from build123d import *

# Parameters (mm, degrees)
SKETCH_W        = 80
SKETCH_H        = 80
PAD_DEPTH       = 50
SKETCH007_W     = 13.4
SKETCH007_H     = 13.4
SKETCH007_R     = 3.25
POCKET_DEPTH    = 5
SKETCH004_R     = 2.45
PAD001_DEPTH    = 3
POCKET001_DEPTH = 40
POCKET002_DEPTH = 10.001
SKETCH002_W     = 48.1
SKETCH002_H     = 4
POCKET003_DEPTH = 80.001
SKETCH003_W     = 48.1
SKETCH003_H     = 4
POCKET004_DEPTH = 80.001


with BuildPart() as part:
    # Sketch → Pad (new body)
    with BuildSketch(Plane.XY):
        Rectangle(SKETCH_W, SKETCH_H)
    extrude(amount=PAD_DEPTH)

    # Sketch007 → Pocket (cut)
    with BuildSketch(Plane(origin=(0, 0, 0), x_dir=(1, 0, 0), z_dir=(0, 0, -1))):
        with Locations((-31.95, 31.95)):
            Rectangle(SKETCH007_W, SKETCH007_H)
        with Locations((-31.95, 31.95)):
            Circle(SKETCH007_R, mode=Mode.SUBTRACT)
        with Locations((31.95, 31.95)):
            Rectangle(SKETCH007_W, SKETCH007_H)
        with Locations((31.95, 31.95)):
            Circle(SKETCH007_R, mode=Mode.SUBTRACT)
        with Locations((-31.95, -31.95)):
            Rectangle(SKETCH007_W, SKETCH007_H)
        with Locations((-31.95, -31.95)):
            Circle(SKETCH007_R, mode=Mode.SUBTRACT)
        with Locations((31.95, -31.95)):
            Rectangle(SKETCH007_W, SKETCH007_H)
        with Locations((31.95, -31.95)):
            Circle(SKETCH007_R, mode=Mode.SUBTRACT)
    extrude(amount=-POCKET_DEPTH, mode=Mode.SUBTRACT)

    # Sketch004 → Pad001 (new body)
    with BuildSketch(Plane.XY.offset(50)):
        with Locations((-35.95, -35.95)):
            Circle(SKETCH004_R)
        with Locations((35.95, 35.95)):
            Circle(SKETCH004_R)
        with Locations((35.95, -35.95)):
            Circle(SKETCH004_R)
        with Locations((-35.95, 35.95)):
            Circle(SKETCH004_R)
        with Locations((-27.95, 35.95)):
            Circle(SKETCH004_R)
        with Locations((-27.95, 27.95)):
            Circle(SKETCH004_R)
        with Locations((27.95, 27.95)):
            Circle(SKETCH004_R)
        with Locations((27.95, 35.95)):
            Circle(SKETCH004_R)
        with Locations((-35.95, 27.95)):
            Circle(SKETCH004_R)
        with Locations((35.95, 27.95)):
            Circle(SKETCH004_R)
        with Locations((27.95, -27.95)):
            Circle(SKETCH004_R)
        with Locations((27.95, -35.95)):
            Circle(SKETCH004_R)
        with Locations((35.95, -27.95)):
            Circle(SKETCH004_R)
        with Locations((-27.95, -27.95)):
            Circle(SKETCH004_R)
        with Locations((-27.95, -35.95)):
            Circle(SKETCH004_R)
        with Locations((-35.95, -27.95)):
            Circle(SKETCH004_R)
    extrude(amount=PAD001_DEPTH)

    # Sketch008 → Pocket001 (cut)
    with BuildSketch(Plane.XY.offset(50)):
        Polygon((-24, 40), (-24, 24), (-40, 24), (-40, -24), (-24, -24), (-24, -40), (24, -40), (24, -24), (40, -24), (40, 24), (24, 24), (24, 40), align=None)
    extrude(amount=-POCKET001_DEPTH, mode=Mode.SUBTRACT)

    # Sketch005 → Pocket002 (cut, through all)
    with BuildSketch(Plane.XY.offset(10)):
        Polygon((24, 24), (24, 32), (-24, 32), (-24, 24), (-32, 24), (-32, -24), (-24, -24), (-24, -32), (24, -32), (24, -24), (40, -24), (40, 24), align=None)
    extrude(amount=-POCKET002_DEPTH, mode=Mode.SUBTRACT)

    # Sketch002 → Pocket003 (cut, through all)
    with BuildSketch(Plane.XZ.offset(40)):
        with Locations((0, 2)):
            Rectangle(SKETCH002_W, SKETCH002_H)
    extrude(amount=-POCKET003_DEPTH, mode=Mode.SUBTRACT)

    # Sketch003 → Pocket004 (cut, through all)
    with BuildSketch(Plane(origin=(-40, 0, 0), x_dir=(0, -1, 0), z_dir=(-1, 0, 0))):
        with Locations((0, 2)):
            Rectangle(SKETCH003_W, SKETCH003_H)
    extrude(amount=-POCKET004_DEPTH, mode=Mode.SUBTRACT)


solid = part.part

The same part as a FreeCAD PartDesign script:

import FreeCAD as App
import Part
import Sketcher
from FreeCAD import Vector


def add_polygon(sketch, points):
    """Adds a closed chain of lines whose ends are joined by coincident constraints."""
    first, n = sketch.GeometryCount, len(points)
    for a, b in zip(points, points[1:] + points[:1]):
        sketch.addGeometry(Part.LineSegment(App.Vector(*a, 0), App.Vector(*b, 0)), False)
    for i in range(n):
        sketch.addConstraint(Sketcher.Constraint("Coincident", first + i, 2, first + (i + 1) % n, 1))

doc = App.newDocument("Part")
body = doc.addObject("PartDesign::Body", "Body")

sketch1 = body.newObject("Sketcher::SketchObject", "Sketch")
sketch1.AttachmentSupport = (doc.getObject("XY_Plane"), [""])
sketch1.MapMode = "FlatFace"
add_polygon(sketch1, [(-40, 40), (-40, -40), (40, -40), (40, 40)])
sketch1.addConstraint([
    Sketcher.Constraint("Vertical", 0),
    Sketcher.Constraint("Horizontal", 1),
    Sketcher.Constraint("Vertical", 2),
    Sketcher.Constraint("Horizontal", 3),
    Sketcher.Constraint("Symmetric", 0, 2, 2, 2, -1, 1),
    Sketcher.Constraint("Equal", 3, 0),
    Sketcher.Constraint("DistanceX", 1, 1, 1, 2, 80.0),
])
pad1 = body.newObject("PartDesign::Pad", "Pad")
pad1.Profile = sketch1
pad1.Length = 50

sketch2 = body.newObject("Sketcher::SketchObject", "Sketch001")
sketch2.AttachmentSupport = (doc.getObject("XY_Plane"), [""])
sketch2.MapMode = "FlatFace"
add_polygon(sketch2, [(-38.6, -38.6), (-38.6, -25.2), (-25.2, -25.2), (-25.2, -38.6)])
sketch2.addGeometry(Part.Circle(Vector(-31.9, -31.9, 0), Vector(0, 0, 1), 3.2), False)
add_polygon(sketch2, [(25.2, -38.6), (25.2, -25.2), (38.6, -25.2), (38.6, -38.6)])
sketch2.addGeometry(Part.Circle(Vector(31.9, -31.9, 0), Vector(0, 0, 1), 3.2), False)
add_polygon(sketch2, [(-38.6, 25.2), (-38.6, 38.6), (-25.2, 38.6), (-25.2, 25.2)])
sketch2.addGeometry(Part.Circle(Vector(-31.9, 31.9, 0), Vector(0, 0, 1), 3.2), False)
add_polygon(sketch2, [(25.2, 25.2), (25.2, 38.6), (38.6, 38.6), (38.6, 25.2)])
sketch2.addGeometry(Part.Circle(Vector(31.9, 31.9, 0), Vector(0, 0, 1), 3.2), False)
sketch2.addConstraint([
    Sketcher.Constraint("Vertical", 0),
    Sketcher.Constraint("Horizontal", 1),
    Sketcher.Constraint("Vertical", 2),
    Sketcher.Constraint("Horizontal", 3),
    Sketcher.Constraint("Vertical", 5),
    Sketcher.Constraint("Horizontal", 6),
    Sketcher.Constraint("Vertical", 7),
    Sketcher.Constraint("Horizontal", 8),
    Sketcher.Constraint("Vertical", 10),
    Sketcher.Constraint("Horizontal", 11),
    Sketcher.Constraint("Vertical", 12),
    Sketcher.Constraint("Horizontal", 13),
    Sketcher.Constraint("Vertical", 15),
    Sketcher.Constraint("Horizontal", 16),
    Sketcher.Constraint("Vertical", 17),
    Sketcher.Constraint("Horizontal", 18),
    Sketcher.Constraint("Equal", 4, 9),
    Sketcher.Constraint("Equal", 9, 14),
    Sketcher.Constraint("Equal", 14, 19),
    Sketcher.Constraint("Symmetric", 9, 3, 14, 3, -1, 1),
    Sketcher.Constraint("Symmetric", 4, 3, 19, 3, -1, 1),
    Sketcher.Constraint("Symmetric", 7, 2, 10, 2, -1, 1),
    Sketcher.Constraint("Symmetric", 5, 2, 12, 2, -1, 1),
    Sketcher.Constraint("Symmetric", 2, 2, 15, 2, -1, 1),
    Sketcher.Constraint("Symmetric", 0, 2, 17, 2, -1, 1),
    Sketcher.Constraint("Symmetric", 4, 3, 9, 3, -2),
    Sketcher.Constraint("Symmetric", 1, 2, 5, 2, -2),
    Sketcher.Constraint("Symmetric", 3, 2, 7, 2, -2),
    Sketcher.Constraint("Equal", 18, 0),
    Sketcher.Constraint("Diameter", 4, 6.5),
    Sketcher.Constraint("DistanceX", 1, 1, 1, 2, 13.4),
    Sketcher.Constraint("DistanceX", 4, 3, 9, 3, 63.9),
    Sketcher.Constraint("DistanceY", 4, 3, 14, 3, 63.9),
    Sketcher.Constraint("DistanceX", 0, 2, 4, 3, 6.7),
    Sketcher.Constraint("DistanceY", 4, 3, 0, 2, 6.7),
])
pocket1 = body.newObject("PartDesign::Pocket", "Pocket")
pocket1.Profile = sketch2
pocket1.Length = 5
pocket1.Reversed = True

sketch3 = body.newObject("Sketcher::SketchObject", "Sketch002")
sketch3.AttachmentSupport = (doc.getObject("XY_Plane"), [""])
sketch3.MapMode = "FlatFace"
sketch3.AttachmentOffset = App.Placement(Vector(0, 0, 50), App.Rotation())
sketch3.addGeometry([
    Part.Circle(Vector(-36, -36, 0), Vector(0, 0, 1), 2.5),
    Part.Circle(Vector(36, 36, 0), Vector(0, 0, 1), 2.5),
    Part.Circle(Vector(36, -36, 0), Vector(0, 0, 1), 2.5),
    Part.Circle(Vector(-36, 36, 0), Vector(0, 0, 1), 2.5),
    Part.Circle(Vector(-27.9, 36, 0), Vector(0, 0, 1), 2.5),
    Part.Circle(Vector(-27.9, 27.9, 0), Vector(0, 0, 1), 2.5),
    Part.Circle(Vector(27.9, 27.9, 0), Vector(0, 0, 1), 2.5),
    Part.Circle(Vector(27.9, 36, 0), Vector(0, 0, 1), 2.5),
    Part.Circle(Vector(-36, 27.9, 0), Vector(0, 0, 1), 2.5),
    Part.Circle(Vector(36, 27.9, 0), Vector(0, 0, 1), 2.5),
    Part.Circle(Vector(27.9, -27.9, 0), Vector(0, 0, 1), 2.5),
    Part.Circle(Vector(27.9, -36, 0), Vector(0, 0, 1), 2.5),
    Part.Circle(Vector(36, -27.9, 0), Vector(0, 0, 1), 2.5),
    Part.Circle(Vector(-27.9, -27.9, 0), Vector(0, 0, 1), 2.5),
    Part.Circle(Vector(-27.9, -36, 0), Vector(0, 0, 1), 2.5),
    Part.Circle(Vector(-36, -27.9, 0), Vector(0, 0, 1), 2.5),
], False)
sketch3.addConstraint([
    Sketcher.Constraint("Equal", 0, 1),
    Sketcher.Constraint("Equal", 1, 2),
    Sketcher.Constraint("Equal", 2, 3),
    Sketcher.Constraint("Equal", 3, 4),
    Sketcher.Constraint("Equal", 4, 5),
    Sketcher.Constraint("Equal", 5, 6),
    Sketcher.Constraint("Equal", 6, 7),
    Sketcher.Constraint("Equal", 7, 8),
    Sketcher.Constraint("Equal", 8, 9),
    Sketcher.Constraint("Equal", 9, 10),
    Sketcher.Constraint("Equal", 10, 11),
    Sketcher.Constraint("Equal", 11, 12),
    Sketcher.Constraint("Equal", 12, 13),
    Sketcher.Constraint("Equal", 13, 14),
    Sketcher.Constraint("Equal", 14, 15),
    Sketcher.Constraint("Symmetric", 0, 3, 1, 3, -1, 1),
    Sketcher.Constraint("Symmetric", 2, 3, 3, 3, -1, 1),
    Sketcher.Constraint("Symmetric", 5, 3, 10, 3, -1, 1),
    Sketcher.Constraint("Symmetric", 4, 3, 11, 3, -1, 1),
    Sketcher.Constraint("Symmetric", 8, 3, 12, 3, -1, 1),
    Sketcher.Constraint("Symmetric", 6, 3, 13, 3, -1, 1),
    Sketcher.Constraint("Symmetric", 7, 3, 14, 3, -1, 1),
    Sketcher.Constraint("Symmetric", 9, 3, 15, 3, -1, 1),
    Sketcher.Constraint("Symmetric", 0, 3, 2, 3, -2),
    Sketcher.Constraint("Symmetric", 5, 3, 6, 3, -2),
    Sketcher.Constraint("Symmetric", 4, 3, 7, 3, -2),
    Sketcher.Constraint("Symmetric", 8, 3, 9, 3, -2),
    Sketcher.Constraint("Horizontal", 3, 3, 4, 3),
    Sketcher.Constraint("Horizontal", 6, 3, 8, 3),
    Sketcher.Constraint("Vertical", 4, 3, 5, 3),
    Sketcher.Constraint("Vertical", 3, 3, 8, 3),
    Sketcher.Constraint("Diameter", 0, 4.9),
    Sketcher.Constraint("DistanceX", 3, 3, 4, 3, 8.0),
    Sketcher.Constraint("DistanceY", 5, 3, 4, 3, 8.0),
    Sketcher.Constraint("DistanceX", 0, 3, 1, 3, 71.9),
    Sketcher.Constraint("DistanceY", 0, 3, 1, 3, 71.9),
])
pad2 = body.newObject("PartDesign::Pad", "Pad001")
pad2.Profile = sketch3
pad2.Length = 3

sketch4 = body.newObject("Sketcher::SketchObject", "Sketch003")
sketch4.AttachmentSupport = (doc.getObject("XY_Plane"), [""])
sketch4.MapMode = "FlatFace"
sketch4.AttachmentOffset = App.Placement(Vector(0, 0, 50), App.Rotation())
add_polygon(sketch4, [(-24, 40), (-24, 24), (-40, 24), (-40, -24), (-24, -24), (-24, -40), (24, -40), (24, -24), (40, -24), (40, 24), (24, 24), (24, 40)])
sketch4.addConstraint([
    Sketcher.Constraint("Vertical", 0),
    Sketcher.Constraint("Horizontal", 1),
    Sketcher.Constraint("Vertical", 2),
    Sketcher.Constraint("Horizontal", 3),
    Sketcher.Constraint("Vertical", 4),
    Sketcher.Constraint("Horizontal", 5),
    Sketcher.Constraint("Vertical", 6),
    Sketcher.Constraint("Horizontal", 7),
    Sketcher.Constraint("Vertical", 8),
    Sketcher.Constraint("Horizontal", 9),
    Sketcher.Constraint("Vertical", 10),
    Sketcher.Constraint("Horizontal", 11),
    Sketcher.Constraint("Symmetric", 0, 2, 6, 2, -1, 1),
    Sketcher.Constraint("Symmetric", 2, 2, 8, 2, -1, 1),
    Sketcher.Constraint("Symmetric", 4, 2, 10, 2, -1, 1),
    Sketcher.Constraint("Symmetric", 3, 2, 6, 2, -2),
    Sketcher.Constraint("Equal", 9, 0),
    Sketcher.Constraint("Equal", 11, 2),
    Sketcher.Constraint("DistanceX", 1, 2, 1, 1, 16.0),
    Sketcher.Constraint("DistanceX", 5, 1, 5, 2, 48.0),
])
pocket2 = body.newObject("PartDesign::Pocket", "Pocket001")
pocket2.Profile = sketch4
pocket2.Length = 40

sketch5 = body.newObject("Sketcher::SketchObject", "Sketch004")
sketch5.AttachmentSupport = (doc.getObject("XY_Plane"), [""])
sketch5.MapMode = "FlatFace"
sketch5.AttachmentOffset = App.Placement(Vector(0, 0, 10), App.Rotation())
add_polygon(sketch5, [(24, 24), (24, 32), (-24, 32), (-24, 24), (-32, 24), (-32, -24), (-24, -24), (-24, -32), (24, -32), (24, -24), (40, -24), (40, 24)])
sketch5.addConstraint([
    Sketcher.Constraint("Vertical", 0),
    Sketcher.Constraint("Horizontal", 1),
    Sketcher.Constraint("Vertical", 2),
    Sketcher.Constraint("Horizontal", 3),
    Sketcher.Constraint("Vertical", 4),
    Sketcher.Constraint("Horizontal", 5),
    Sketcher.Constraint("Vertical", 6),
    Sketcher.Constraint("Horizontal", 7),
    Sketcher.Constraint("Vertical", 8),
    Sketcher.Constraint("Horizontal", 9),
    Sketcher.Constraint("Vertical", 10),
    Sketcher.Constraint("Horizontal", 11),
    Sketcher.Constraint("Symmetric", 0, 2, 6, 2, -1, 1),
    Sketcher.Constraint("Symmetric", 2, 2, 8, 2, -1, 1),
    Sketcher.Constraint("Symmetric", 5, 2, 8, 2, -2),
    Sketcher.Constraint("Horizontal", 3, 2, 10, 2),
    Sketcher.Constraint("Equal", 5, 0),
    Sketcher.Constraint("Equal", 7, 4),
    Sketcher.Constraint("DistanceX", 1, 2, 1, 1, 48.0),
    Sketcher.Constraint("DistanceX", 3, 2, 3, 1, 8.0),
    Sketcher.Constraint("DistanceX", 9, 1, 9, 2, 16.0),
])
pocket3 = body.newObject("PartDesign::Pocket", "Pocket002")
pocket3.Profile = sketch5
pocket3.Type = "ThroughAll"

sketch6 = body.newObject("Sketcher::SketchObject", "Sketch005")
sketch6.AttachmentSupport = (doc.getObject("XZ_Plane"), [""])
sketch6.MapMode = "FlatFace"
sketch6.AttachmentOffset = App.Placement(Vector(0, 0, 40), App.Rotation())
add_polygon(sketch6, [(-24.1, 4), (-24.1, 0), (24.1, 0), (24.1, 4)])
sketch6.addConstraint([
    Sketcher.Constraint("Vertical", 0),
    Sketcher.Constraint("Horizontal", 1),
    Sketcher.Constraint("Vertical", 2),
    Sketcher.Constraint("Horizontal", 3),
    Sketcher.Constraint("Symmetric", 0, 2, 1, 2, -1, 1),
    Sketcher.Constraint("DistanceY", 0, 2, 0, 1, 4.0),
    Sketcher.Constraint("DistanceX", 1, 1, 1, 2, 48.1),
])
pocket4 = body.newObject("PartDesign::Pocket", "Pocket003")
pocket4.Profile = sketch6
pocket4.Type = "ThroughAll"

sketch7 = body.newObject("Sketcher::SketchObject", "Sketch006")
sketch7.AttachmentSupport = (doc.getObject("YZ_Plane"), [""])
sketch7.MapMode = "FlatFace"
sketch7.AttachmentOffset = App.Placement(Vector(0, 0, -40), App.Rotation())
add_polygon(sketch7, [(24.1, 4), (24.1, 0), (-24.1, 0), (-24.1, 4)])
sketch7.addConstraint([
    Sketcher.Constraint("Vertical", 0),
    Sketcher.Constraint("Horizontal", 1),
    Sketcher.Constraint("Vertical", 2),
    Sketcher.Constraint("Horizontal", 3),
    Sketcher.Constraint("Symmetric", 0, 2, 1, 2, -1, 1),
    Sketcher.Constraint("DistanceY", 0, 2, 0, 1, 4.0),
    Sketcher.Constraint("DistanceX", 1, 2, 1, 1, 48.1),
])
pocket5 = body.newObject("PartDesign::Pocket", "Pocket004")
pocket5.Profile = sketch7
pocket5.Type = "ThroughAll"
pocket5.Reversed = True

doc.recompute()
